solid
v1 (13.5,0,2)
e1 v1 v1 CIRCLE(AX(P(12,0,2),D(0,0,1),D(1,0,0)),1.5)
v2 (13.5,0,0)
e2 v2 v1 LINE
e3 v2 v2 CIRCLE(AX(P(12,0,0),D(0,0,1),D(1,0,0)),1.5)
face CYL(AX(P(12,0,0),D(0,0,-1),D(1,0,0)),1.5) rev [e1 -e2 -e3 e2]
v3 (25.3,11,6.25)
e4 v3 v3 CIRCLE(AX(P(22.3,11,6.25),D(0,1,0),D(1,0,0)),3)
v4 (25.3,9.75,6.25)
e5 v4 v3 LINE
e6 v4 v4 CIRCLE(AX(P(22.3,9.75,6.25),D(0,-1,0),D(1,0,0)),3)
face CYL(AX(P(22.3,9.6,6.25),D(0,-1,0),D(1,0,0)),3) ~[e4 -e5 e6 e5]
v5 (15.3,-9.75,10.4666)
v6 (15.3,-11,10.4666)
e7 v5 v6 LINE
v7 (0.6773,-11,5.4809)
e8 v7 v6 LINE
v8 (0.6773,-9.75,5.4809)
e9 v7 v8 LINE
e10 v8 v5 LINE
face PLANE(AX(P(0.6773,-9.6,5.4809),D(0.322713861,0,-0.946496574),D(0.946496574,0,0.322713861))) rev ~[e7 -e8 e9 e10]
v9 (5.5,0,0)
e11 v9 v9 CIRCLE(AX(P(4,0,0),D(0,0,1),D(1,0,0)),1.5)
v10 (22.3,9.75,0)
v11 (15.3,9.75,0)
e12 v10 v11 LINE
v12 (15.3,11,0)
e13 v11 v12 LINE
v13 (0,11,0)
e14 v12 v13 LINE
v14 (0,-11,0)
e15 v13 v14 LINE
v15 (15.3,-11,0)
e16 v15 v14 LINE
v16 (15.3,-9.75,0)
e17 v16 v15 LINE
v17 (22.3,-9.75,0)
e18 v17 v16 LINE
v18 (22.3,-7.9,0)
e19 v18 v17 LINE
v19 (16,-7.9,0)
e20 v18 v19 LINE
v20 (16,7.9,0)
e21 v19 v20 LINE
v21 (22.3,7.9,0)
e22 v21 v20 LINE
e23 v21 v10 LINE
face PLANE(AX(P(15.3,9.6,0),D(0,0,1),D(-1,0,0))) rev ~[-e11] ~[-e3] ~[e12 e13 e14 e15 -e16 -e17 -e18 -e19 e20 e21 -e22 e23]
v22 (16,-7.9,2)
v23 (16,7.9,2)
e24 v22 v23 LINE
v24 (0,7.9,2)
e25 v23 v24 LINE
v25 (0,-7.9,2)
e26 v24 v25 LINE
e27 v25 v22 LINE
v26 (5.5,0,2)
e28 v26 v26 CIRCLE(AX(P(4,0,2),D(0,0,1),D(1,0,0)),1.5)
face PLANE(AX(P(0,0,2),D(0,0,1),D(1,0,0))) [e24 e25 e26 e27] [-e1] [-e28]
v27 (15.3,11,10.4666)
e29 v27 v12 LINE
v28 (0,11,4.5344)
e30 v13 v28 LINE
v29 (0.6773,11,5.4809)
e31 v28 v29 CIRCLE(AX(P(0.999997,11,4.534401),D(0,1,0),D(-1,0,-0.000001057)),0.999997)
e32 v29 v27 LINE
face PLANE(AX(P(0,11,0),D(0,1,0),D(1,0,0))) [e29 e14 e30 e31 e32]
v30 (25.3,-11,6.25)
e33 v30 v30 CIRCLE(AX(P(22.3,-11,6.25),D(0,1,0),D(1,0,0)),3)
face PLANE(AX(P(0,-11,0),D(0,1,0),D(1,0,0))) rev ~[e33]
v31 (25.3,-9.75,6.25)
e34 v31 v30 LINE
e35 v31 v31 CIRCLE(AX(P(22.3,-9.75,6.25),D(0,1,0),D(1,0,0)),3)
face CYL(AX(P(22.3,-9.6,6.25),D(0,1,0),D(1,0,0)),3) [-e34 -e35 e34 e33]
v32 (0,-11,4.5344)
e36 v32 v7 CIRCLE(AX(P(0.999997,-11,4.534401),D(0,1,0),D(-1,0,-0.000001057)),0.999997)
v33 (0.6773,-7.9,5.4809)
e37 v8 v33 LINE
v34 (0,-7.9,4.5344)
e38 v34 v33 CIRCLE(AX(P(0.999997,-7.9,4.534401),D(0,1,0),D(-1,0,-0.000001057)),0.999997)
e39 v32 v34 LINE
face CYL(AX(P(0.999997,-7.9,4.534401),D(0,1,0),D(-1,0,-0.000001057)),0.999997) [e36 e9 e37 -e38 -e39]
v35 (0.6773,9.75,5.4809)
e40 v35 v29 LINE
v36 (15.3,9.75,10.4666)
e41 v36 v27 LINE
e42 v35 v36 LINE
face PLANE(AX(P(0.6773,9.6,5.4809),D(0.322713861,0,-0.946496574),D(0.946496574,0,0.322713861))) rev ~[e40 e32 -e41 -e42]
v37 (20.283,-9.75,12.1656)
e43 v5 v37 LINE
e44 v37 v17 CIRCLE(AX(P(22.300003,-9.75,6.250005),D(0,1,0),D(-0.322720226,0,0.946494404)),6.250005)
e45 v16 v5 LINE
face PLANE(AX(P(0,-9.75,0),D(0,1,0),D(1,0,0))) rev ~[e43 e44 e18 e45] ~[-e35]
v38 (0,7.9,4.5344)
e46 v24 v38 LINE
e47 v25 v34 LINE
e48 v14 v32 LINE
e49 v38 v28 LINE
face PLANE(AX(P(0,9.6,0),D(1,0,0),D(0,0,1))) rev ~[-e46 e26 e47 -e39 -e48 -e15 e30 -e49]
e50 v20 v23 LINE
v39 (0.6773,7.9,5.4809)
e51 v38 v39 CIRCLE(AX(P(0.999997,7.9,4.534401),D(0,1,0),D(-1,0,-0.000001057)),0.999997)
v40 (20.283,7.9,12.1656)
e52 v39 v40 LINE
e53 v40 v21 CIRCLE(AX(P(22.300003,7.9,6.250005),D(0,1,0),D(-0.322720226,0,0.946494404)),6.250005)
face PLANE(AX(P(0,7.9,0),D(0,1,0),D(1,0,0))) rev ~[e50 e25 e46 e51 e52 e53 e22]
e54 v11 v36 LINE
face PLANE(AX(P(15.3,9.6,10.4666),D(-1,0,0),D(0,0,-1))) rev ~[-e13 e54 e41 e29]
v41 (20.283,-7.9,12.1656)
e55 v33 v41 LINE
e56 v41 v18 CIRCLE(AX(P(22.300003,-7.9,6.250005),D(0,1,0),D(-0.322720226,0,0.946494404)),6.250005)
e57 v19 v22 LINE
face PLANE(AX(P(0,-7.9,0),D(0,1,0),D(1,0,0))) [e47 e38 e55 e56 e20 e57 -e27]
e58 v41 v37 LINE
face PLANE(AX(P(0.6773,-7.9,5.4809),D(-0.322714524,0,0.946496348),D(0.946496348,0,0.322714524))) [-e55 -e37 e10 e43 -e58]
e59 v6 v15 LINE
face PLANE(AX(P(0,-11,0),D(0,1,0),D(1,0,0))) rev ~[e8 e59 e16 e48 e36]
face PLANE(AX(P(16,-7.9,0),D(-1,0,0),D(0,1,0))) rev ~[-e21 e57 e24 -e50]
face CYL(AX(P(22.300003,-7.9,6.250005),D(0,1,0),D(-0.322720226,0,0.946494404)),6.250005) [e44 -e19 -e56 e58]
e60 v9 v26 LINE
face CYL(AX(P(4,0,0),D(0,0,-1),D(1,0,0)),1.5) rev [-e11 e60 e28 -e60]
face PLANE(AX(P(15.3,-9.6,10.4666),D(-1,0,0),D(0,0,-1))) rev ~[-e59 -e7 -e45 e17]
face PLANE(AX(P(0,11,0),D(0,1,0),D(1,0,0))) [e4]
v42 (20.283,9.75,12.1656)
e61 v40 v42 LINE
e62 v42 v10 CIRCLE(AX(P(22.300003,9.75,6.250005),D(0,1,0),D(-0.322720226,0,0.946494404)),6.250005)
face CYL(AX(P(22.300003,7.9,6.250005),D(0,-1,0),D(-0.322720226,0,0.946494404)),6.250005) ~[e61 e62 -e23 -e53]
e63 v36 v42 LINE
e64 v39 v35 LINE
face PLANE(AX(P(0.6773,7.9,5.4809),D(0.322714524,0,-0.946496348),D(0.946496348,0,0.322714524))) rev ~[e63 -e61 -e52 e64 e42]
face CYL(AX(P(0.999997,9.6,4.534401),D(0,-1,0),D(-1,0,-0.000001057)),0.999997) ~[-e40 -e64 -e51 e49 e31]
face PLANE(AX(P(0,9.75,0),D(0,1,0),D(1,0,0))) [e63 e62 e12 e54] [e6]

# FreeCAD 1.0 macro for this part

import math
import FreeCAD as App
import Part
import Sketcher

V = App.Vector

doc = App.newDocument("Part")
body = doc.addObject("PartDesign::Body", "Body")

# Sketch on XY plane
sketch1 = doc.addObject("Sketcher::SketchObject", "Sketch")
body.addObject(sketch1)
sketch1.AttachmentSupport = (doc.XY_Plane, [""])
sketch1.MapMode = "FlatFace"
sketch1.addGeometry([
    Part.LineSegment(V(16, 7.9, 0), V(0, 7.9, 0)),  # 0
    Part.LineSegment(V(0, 7.9, 0), V(0, -7.9, 0)),  # 1
    Part.LineSegment(V(0, -7.9, 0), V(16, -7.9, 0)),  # 2
    Part.LineSegment(V(16, -7.9, 0), V(16, 7.9, 0)),  # 3
    Part.Circle(V(4, 0, 0), V(0, 0, 1), 1.5),  # 4
    Part.Circle(V(12, 0, 0), V(0, 0, 1), 1.5),  # 5
], False)
sketch1.addConstraint([
    Sketcher.Constraint("Coincident", 0, 2, 1, 1),
    Sketcher.Constraint("Coincident", 1, 2, 2, 1),
    Sketcher.Constraint("Coincident", 2, 2, 3, 1),
    Sketcher.Constraint("Coincident", 3, 2, 0, 1),
    Sketcher.Constraint("Horizontal", 0),
    Sketcher.Constraint("Vertical", 1),
    Sketcher.Constraint("Horizontal", 2),
    Sketcher.Constraint("Vertical", 3),
    Sketcher.Constraint("Equal", 4, 5),
    Sketcher.Constraint("Symmetric", 0, 2, 1, 2, -1, 1),
    Sketcher.Constraint("PointOnObject", 4, 3, -1),
    Sketcher.Constraint("PointOnObject", 5, 3, -1),
    Sketcher.Constraint("Diameter", 4, 3.0),
    Sketcher.Constraint("DistanceX", 0, 2, 0, 1, 16.0),
    Sketcher.Constraint("DistanceY", 1, 2, 1, 1, 15.8),
    Sketcher.Constraint("DistanceX", -1, 1, 4, 3, 4.0),
    Sketcher.Constraint("DistanceX", -1, 1, 5, 3, 12.0),
])
pad1 = doc.addObject("PartDesign::Pad", "Pad")
body.addObject(pad1)
pad1.Profile = sketch1
pad1.Length = 2

# Sketch on XZ plane
sketch2 = doc.addObject("Sketcher::SketchObject", "Sketch001")
body.addObject(sketch2)
sketch2.AttachmentSupport = (doc.XZ_Plane, [""])
sketch2.MapMode = "FlatFace"
sketch2.AttachmentOffset = App.Placement(V(0, 0, -7.9), App.Rotation())
sketch2.addGeometry([
    Part.LineSegment(V(0, 0, 0), V(0, 4.5, 0)),  # 0
    Part.ArcOfCircle(Part.Circle(V(1, 4.5, 0), V(0, 0, 1), 1), math.radians(109), math.radians(180)),  # 1
    Part.LineSegment(V(0.7, 5.5, 0), V(20.3, 12.2, 0)),  # 2
    Part.ArcOfCircle(Part.Circle(V(22.3, 6.2, 0), V(0, 0, 1), 6.3), math.radians(-90), math.radians(109)),  # 3
    Part.LineSegment(V(22.3, 0, 0), V(0, 0, 0)),  # 4
], False)
sketch2.addConstraint([
    Sketcher.Constraint("Tangent", 0, 2, 1, 2),
    Sketcher.Constraint("Tangent", 1, 1, 2, 1),
    Sketcher.Constraint("Tangent", 2, 2, 3, 2),
    Sketcher.Constraint("Tangent", 3, 1, 4, 1),
    Sketcher.Constraint("Coincident", 4, 2, 0, 1),
    Sketcher.Constraint("Vertical", 0),
    Sketcher.Constraint("Horizontal", 4),
    Sketcher.Constraint("Coincident", 4, 2, -1, 1),
    Sketcher.Constraint("Radius", 1, 1.0),
    Sketcher.Constraint("Radius", 3, 6.25),
    Sketcher.Constraint("DistanceX", 4, 2, 4, 1, 22.3),
    Sketcher.Constraint("Distance", 2, 20.714),
])
pad2 = doc.addObject("PartDesign::Pad", "Pad001")
body.addObject(pad2)
pad2.Profile = sketch2
pad2.Length = 1.85
pad2.Reversed = True

# Sketch on XZ plane
sketch3 = doc.addObject("Sketcher::SketchObject", "Sketch002")
body.addObject(sketch3)
sketch3.AttachmentSupport = (doc.XZ_Plane, [""])
sketch3.MapMode = "FlatFace"
sketch3.AttachmentOffset = App.Placement(V(0, 0, 7.9), App.Rotation())
sketch3.addGeometry([
    Part.LineSegment(V(0, 0, 0), V(0, 4.5, 0)),  # 0
    Part.ArcOfCircle(Part.Circle(V(1, 4.5, 0), V(0, 0, 1), 1), math.radians(109), math.radians(180)),  # 1
    Part.LineSegment(V(0.7, 5.5, 0), V(20.3, 12.2, 0)),  # 2
    Part.ArcOfCircle(Part.Circle(V(22.3, 6.2, 0), V(0, 0, 1), 6.3), math.radians(-90), math.radians(109)),  # 3
    Part.LineSegment(V(22.3, 0, 0), V(0, 0, 0)),  # 4
], False)
sketch3.addConstraint([
    Sketcher.Constraint("Tangent", 0, 2, 1, 2),
    Sketcher.Constraint("Tangent", 1, 1, 2, 1),
    Sketcher.Constraint("Tangent", 2, 2, 3, 2),
    Sketcher.Constraint("Tangent", 3, 1, 4, 1),
    Sketcher.Constraint("Coincident", 4, 2, 0, 1),
    Sketcher.Constraint("Vertical", 0),
    Sketcher.Constraint("Horizontal", 4),
    Sketcher.Constraint("Coincident", 4, 2, -1, 1),
    Sketcher.Constraint("Radius", 1, 1.0),
    Sketcher.Constraint("Radius", 3, 6.25),
    Sketcher.Constraint("DistanceX", 4, 2, 4, 1, 22.3),
    Sketcher.Constraint("Distance", 2, 20.714),
])
pad3 = doc.addObject("PartDesign::Pad", "Pad002")
body.addObject(pad3)
pad3.Profile = sketch3
pad3.Length = 1.85

# Sketch on XZ plane
sketch4 = doc.addObject("Sketcher::SketchObject", "Sketch003")
body.addObject(sketch4)
sketch4.AttachmentSupport = (doc.XZ_Plane, [""])
sketch4.MapMode = "FlatFace"
sketch4.AttachmentOffset = App.Placement(V(0, 0, -9.6), App.Rotation())
sketch4.addGeometry(Part.Circle(V(22.3, 6.2, 0), V(0, 0, 1), 3), False)
sketch4.addConstraint([
    Sketcher.Constraint("Diameter", 0, 6.0),
    Sketcher.Constraint("DistanceX", -1, 1, 0, 3, 22.3),
    Sketcher.Constraint("DistanceY", -1, 1, 0, 3, 6.25),
])
pad4 = doc.addObject("PartDesign::Pad", "Pad003")
body.addObject(pad4)
pad4.Profile = sketch4
pad4.Length = 1.4
pad4.Reversed = True

# Sketch on XZ plane
sketch5 = doc.addObject("Sketcher::SketchObject", "Sketch004")
body.addObject(sketch5)
sketch5.AttachmentSupport = (doc.XZ_Plane, [""])
sketch5.MapMode = "FlatFace"
sketch5.AttachmentOffset = App.Placement(V(0, 0, 9.6), App.Rotation())
sketch5.addGeometry(Part.Circle(V(22.3, 6.2, 0), V(0, 0, 1), 3), False)
sketch5.addConstraint([
    Sketcher.Constraint("Diameter", 0, 6.0),
    Sketcher.Constraint("DistanceX", -1, 1, 0, 3, 22.3),
    Sketcher.Constraint("DistanceY", -1, 1, 0, 3, 6.25),
])
pad5 = doc.addObject("PartDesign::Pad", "Pad004")
body.addObject(pad5)
pad5.Profile = sketch5
pad5.Length = 2.8
pad5.Midplane = True

# Sketch on XZ plane
sketch6 = doc.addObject("Sketcher::SketchObject", "Sketch005")
body.addObject(sketch6)
sketch6.AttachmentSupport = (doc.XZ_Plane, [""])
sketch6.MapMode = "FlatFace"
sketch6.AttachmentOffset = App.Placement(V(0, 0, -9.6), App.Rotation())
sketch6.addGeometry([
    Part.LineSegment(V(0, 0, 0), V(0, 4.5, 0)),  # 0
    Part.ArcOfCircle(Part.Circle(V(1, 4.5, 0), V(0, 0, 1), 1), math.radians(109), math.radians(180)),  # 1
    Part.LineSegment(V(0.7, 5.5, 0), V(15.3, 10.5, 0)),  # 2
    Part.LineSegment(V(15.3, 10.5, 0), V(15.3, 0, 0)),  # 3
    Part.LineSegment(V(15.3, 0, 0), V(0, 0, 0)),  # 4
], False)
sketch6.addConstraint([
    Sketcher.Constraint("Tangent", 0, 2, 1, 2),
    Sketcher.Constraint("Tangent", 1, 1, 2, 1),
    Sketcher.Constraint("Coincident", 2, 2, 3, 1),
    Sketcher.Constraint("Coincident", 3, 2, 4, 1),
    Sketcher.Constraint("Coincident", 4, 2, 0, 1),
    Sketcher.Constraint("Vertical", 0),
    Sketcher.Constraint("Vertical", 3),
    Sketcher.Constraint("Horizontal", 4),
    Sketcher.Constraint("Coincident", 4, 2, -1, 1),
    Sketcher.Constraint("Radius", 1, 1.0),
    Sketcher.Constraint("DistanceX", 4, 2, 4, 1, 15.3),
    Sketcher.Constraint("DistanceY", 0, 1, 0, 2, 4.5344),
    Sketcher.Constraint("DistanceY", 3, 2, 3, 1, 10.4666),
])
pad6 = doc.addObject("PartDesign::Pad", "Pad005")
body.addObject(pad6)
pad6.Profile = sketch6
pad6.Length = 1.4
pad6.Reversed = True

# Sketch on XZ plane
sketch7 = doc.addObject("Sketcher::SketchObject", "Sketch006")
body.addObject(sketch7)
sketch7.AttachmentSupport = (doc.XZ_Plane, [""])
sketch7.MapMode = "FlatFace"
sketch7.AttachmentOffset = App.Placement(V(0, 0, 9.6), App.Rotation())
sketch7.addGeometry([
    Part.LineSegment(V(0, 0, 0), V(0, 4.5, 0)),  # 0
    Part.ArcOfCircle(Part.Circle(V(1, 4.5, 0), V(0, 0, 1), 1), math.radians(109), math.radians(180)),  # 1
    Part.LineSegment(V(0.7, 5.5, 0), V(15.3, 10.5, 0)),  # 2
    Part.LineSegment(V(15.3, 10.5, 0), V(15.3, 0, 0)),  # 3
    Part.LineSegment(V(15.3, 0, 0), V(0, 0, 0)),  # 4
], False)
sketch7.addConstraint([
    Sketcher.Constraint("Tangent", 0, 2, 1, 2),
    Sketcher.Constraint("Tangent", 1, 1, 2, 1),
    Sketcher.Constraint("Coincident", 2, 2, 3, 1),
    Sketcher.Constraint("Coincident", 3, 2, 4, 1),
    Sketcher.Constraint("Coincident", 4, 2, 0, 1),
    Sketcher.Constraint("Vertical", 0),
    Sketcher.Constraint("Vertical", 3),
    Sketcher.Constraint("Horizontal", 4),
    Sketcher.Constraint("Coincident", 4, 2, -1, 1),
    Sketcher.Constraint("Radius", 1, 1.0),
    Sketcher.Constraint("DistanceX", 4, 2, 4, 1, 15.3),
    Sketcher.Constraint("DistanceY", 0, 1, 0, 2, 4.5344),
    Sketcher.Constraint("DistanceY", 3, 2, 3, 1, 10.4666),
])
pad7 = doc.addObject("PartDesign::Pad", "Pad006")
body.addObject(pad7)
pad7.Profile = sketch7
pad7.Length = 2.8
pad7.Midplane = True

doc.recompute()
